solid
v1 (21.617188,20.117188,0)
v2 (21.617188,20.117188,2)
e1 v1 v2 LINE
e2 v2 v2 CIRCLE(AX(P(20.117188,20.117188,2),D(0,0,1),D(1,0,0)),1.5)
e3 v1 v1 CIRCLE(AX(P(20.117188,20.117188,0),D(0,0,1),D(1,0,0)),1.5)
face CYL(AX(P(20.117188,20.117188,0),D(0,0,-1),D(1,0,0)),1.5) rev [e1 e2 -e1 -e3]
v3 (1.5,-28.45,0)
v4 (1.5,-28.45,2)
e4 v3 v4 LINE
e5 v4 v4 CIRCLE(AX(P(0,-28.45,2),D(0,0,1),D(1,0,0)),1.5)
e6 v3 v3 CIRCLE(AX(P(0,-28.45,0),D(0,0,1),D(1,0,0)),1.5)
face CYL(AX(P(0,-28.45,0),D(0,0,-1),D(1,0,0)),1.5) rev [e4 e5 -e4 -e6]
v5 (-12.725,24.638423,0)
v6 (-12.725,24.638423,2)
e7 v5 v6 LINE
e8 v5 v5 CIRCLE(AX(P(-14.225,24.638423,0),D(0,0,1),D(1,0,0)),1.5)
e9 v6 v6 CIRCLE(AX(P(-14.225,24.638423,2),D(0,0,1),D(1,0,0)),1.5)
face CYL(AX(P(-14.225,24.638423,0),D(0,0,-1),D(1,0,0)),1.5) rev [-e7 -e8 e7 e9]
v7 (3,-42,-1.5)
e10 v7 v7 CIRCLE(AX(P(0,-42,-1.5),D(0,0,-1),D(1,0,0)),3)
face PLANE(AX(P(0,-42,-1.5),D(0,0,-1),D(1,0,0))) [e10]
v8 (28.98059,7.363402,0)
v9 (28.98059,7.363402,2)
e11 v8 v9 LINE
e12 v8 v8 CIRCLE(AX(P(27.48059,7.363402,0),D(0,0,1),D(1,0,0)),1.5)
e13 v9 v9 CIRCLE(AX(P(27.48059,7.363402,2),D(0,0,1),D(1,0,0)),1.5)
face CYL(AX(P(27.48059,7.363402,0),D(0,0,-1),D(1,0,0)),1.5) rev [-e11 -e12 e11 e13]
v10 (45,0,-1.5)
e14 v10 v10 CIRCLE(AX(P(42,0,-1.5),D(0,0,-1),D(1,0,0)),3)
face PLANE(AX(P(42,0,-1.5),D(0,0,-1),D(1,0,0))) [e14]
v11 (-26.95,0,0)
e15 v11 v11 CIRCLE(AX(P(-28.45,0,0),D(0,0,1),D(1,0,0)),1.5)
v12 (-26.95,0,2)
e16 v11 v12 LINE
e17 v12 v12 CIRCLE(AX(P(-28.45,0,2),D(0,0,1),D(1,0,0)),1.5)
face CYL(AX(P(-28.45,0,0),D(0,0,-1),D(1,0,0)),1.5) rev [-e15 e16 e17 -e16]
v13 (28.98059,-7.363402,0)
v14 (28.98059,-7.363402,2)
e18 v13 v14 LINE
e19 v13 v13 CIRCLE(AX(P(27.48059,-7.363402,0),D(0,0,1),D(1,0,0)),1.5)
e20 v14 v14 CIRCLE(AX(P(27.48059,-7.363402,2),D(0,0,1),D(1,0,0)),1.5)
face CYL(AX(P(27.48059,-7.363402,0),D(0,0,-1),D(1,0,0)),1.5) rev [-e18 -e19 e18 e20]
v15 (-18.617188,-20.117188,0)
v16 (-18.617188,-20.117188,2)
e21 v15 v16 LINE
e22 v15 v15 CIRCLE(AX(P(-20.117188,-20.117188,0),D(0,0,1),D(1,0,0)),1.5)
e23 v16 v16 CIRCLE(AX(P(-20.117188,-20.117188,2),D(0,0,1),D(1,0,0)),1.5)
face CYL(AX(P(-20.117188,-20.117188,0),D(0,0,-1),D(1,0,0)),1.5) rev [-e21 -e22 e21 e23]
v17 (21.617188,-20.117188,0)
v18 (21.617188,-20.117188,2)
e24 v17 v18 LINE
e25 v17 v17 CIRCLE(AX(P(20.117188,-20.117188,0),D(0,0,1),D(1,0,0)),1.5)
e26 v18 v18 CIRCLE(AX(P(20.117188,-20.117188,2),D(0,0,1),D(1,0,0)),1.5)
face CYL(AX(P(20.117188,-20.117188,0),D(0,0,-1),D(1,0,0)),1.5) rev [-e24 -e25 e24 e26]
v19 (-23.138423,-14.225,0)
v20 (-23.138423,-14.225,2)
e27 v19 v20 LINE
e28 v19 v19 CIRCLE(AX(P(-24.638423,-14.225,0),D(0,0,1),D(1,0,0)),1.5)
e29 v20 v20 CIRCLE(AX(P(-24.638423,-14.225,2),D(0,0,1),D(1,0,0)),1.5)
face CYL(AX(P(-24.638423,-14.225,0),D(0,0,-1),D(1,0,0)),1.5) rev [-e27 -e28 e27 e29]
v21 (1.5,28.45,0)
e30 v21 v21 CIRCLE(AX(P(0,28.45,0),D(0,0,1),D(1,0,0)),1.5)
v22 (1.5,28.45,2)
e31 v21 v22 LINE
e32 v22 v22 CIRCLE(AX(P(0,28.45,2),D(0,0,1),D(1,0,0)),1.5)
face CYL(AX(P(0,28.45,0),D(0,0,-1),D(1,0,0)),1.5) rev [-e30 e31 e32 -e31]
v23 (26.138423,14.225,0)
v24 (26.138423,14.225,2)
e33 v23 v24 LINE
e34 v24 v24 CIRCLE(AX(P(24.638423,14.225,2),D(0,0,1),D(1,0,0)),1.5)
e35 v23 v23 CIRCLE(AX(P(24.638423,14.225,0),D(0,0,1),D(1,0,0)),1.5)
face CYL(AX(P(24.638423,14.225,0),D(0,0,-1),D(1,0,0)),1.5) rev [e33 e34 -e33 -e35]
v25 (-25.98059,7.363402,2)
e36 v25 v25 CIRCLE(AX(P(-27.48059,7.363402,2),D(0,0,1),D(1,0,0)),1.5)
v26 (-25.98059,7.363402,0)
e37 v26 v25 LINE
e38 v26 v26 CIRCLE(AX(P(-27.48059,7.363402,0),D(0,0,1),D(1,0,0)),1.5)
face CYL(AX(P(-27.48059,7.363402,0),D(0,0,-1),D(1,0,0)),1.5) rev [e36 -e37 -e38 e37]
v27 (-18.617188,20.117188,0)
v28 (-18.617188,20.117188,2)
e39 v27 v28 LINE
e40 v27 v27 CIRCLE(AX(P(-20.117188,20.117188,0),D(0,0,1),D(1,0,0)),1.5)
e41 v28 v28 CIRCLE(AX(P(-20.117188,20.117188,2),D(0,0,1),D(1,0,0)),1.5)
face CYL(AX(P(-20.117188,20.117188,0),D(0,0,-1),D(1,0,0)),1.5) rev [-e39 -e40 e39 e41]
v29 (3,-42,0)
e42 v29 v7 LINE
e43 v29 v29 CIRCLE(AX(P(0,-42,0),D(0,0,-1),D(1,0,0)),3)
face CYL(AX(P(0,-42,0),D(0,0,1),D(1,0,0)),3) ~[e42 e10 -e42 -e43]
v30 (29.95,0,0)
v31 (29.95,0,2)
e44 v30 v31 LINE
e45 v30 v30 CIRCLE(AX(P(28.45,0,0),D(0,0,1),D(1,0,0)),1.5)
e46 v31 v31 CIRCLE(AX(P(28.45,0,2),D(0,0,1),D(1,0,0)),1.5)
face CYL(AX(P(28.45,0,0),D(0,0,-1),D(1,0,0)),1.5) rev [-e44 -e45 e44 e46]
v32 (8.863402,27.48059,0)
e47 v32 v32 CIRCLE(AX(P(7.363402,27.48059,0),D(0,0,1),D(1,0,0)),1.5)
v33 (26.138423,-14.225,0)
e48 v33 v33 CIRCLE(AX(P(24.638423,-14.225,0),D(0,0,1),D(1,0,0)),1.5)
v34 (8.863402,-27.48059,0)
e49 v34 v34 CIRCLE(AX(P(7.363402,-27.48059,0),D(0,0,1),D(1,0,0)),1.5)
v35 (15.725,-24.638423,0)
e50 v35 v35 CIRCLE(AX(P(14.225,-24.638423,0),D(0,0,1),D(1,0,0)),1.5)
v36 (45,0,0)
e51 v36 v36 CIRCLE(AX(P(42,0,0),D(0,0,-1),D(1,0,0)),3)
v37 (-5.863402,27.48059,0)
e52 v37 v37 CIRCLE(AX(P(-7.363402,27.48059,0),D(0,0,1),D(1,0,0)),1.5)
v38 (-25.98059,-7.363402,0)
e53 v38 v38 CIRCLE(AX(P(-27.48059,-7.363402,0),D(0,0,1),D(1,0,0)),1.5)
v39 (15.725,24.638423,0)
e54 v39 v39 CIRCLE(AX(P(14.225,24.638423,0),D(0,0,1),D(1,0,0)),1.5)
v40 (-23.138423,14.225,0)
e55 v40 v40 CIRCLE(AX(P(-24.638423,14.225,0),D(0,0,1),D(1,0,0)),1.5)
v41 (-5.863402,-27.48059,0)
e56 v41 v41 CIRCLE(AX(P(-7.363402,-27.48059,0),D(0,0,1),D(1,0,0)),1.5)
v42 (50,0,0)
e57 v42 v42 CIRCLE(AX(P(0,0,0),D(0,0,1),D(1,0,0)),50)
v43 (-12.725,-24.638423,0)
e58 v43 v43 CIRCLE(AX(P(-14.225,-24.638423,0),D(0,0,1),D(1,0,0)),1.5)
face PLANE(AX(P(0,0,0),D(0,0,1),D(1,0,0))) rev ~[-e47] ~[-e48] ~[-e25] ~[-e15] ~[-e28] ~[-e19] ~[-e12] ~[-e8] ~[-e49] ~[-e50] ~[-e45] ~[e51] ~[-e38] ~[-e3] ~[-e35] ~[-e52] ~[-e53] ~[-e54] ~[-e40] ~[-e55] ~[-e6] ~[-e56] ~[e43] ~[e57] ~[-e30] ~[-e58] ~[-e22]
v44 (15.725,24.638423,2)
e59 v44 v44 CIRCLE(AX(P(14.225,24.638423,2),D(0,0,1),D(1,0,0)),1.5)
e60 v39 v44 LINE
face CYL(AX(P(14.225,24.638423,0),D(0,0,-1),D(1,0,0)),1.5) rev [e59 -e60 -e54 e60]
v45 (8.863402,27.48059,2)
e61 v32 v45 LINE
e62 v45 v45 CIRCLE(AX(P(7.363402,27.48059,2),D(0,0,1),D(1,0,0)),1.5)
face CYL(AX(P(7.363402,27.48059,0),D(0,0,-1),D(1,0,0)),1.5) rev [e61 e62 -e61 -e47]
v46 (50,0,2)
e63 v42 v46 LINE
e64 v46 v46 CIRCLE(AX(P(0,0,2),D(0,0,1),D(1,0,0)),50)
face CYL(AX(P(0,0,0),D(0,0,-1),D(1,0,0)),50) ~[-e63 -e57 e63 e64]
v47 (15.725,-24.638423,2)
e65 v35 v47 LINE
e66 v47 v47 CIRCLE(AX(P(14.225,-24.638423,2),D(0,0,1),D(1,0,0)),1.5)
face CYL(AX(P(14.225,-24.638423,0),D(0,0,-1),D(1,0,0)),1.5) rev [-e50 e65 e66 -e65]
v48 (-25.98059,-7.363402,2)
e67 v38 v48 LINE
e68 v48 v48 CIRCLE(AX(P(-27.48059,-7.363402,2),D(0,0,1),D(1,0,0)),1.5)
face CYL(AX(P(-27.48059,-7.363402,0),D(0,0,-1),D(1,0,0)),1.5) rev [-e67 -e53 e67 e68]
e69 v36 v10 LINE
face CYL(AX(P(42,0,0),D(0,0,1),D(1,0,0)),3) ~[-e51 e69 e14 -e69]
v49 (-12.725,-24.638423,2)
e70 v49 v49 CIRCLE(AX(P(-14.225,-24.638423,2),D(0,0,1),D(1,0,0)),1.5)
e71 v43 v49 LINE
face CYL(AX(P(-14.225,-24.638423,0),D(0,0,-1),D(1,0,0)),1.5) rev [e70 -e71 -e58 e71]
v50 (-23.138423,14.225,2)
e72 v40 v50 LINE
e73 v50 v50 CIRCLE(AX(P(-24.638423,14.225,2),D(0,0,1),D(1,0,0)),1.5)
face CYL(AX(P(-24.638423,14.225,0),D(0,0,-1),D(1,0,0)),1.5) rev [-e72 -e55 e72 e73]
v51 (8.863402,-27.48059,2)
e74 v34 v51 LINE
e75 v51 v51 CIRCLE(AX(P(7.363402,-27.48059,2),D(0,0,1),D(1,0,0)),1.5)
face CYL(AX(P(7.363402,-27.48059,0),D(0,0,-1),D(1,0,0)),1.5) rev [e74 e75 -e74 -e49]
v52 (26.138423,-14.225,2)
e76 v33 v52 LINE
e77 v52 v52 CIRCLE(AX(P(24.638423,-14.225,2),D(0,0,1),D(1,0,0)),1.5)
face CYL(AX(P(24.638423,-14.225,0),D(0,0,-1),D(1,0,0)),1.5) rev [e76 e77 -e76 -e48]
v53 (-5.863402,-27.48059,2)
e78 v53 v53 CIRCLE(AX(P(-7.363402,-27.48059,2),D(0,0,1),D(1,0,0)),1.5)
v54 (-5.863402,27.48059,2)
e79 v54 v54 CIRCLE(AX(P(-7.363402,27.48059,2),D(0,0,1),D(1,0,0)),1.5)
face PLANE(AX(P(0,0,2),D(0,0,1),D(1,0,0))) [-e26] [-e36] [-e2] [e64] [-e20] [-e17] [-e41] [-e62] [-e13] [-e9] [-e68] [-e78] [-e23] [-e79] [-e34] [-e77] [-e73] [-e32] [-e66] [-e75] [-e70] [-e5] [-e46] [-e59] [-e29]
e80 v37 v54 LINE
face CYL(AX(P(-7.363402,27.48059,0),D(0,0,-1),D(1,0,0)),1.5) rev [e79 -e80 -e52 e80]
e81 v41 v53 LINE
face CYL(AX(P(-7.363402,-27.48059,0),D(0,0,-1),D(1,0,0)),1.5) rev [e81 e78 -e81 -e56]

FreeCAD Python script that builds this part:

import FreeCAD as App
import Part
import Sketcher

V = App.Vector
Q = App.Units.Quantity

doc = App.newDocument("Part")
body = doc.addObject("PartDesign::Body", "Body")

# Sketch on XY plane
sketch1 = doc.addObject("Sketcher::SketchObject", "Sketch")
body.addObject(sketch1)
sketch1.AttachmentSupport = (doc.XY_Plane, [""])
sketch1.MapMode = "FlatFace"
sketch1.addGeometry([
    Part.Circle(V(0, 0, 0), V(0, 0, 1), 50),  # 0
    Part.Circle(V(-20.1, -20.1, 0), V(0, 0, 1), 1.5),  # 1
    Part.Circle(V(-14.2, -24.6, 0), V(0, 0, 1), 1.5),  # 2
    Part.Circle(V(-7.4, -27.5, 0), V(0, 0, 1), 1.5),  # 3
    Part.Circle(V(-24.6, -14.2, 0), V(0, 0, 1), 1.5),  # 4
    Part.Circle(V(-27.5, -7.4, 0), V(0, 0, 1), 1.5),  # 5
    Part.Circle(V(-28.4, 0, 0), V(0, 0, 1), 1.5),  # 6
    Part.Circle(V(0, -28.4, 0), V(0, 0, 1), 1.5),  # 7
    Part.Circle(V(7.4, -27.5, 0), V(0, 0, 1), 1.5),  # 8
    Part.Circle(V(14.2, -24.6, 0), V(0, 0, 1), 1.5),  # 9
    Part.Circle(V(20.1, -20.1, 0), V(0, 0, 1), 1.5),  # 10
    Part.Circle(V(24.6, -14.2, 0), V(0, 0, 1), 1.5),  # 11
    Part.Circle(V(27.5, -7.4, 0), V(0, 0, 1), 1.5),  # 12
    Part.Circle(V(28.4, 0, 0), V(0, 0, 1), 1.5),  # 13
    Part.Circle(V(-27.5, 7.4, 0), V(0, 0, 1), 1.5),  # 14
    Part.Circle(V(-24.6, 14.2, 0), V(0, 0, 1), 1.5),  # 15
    Part.Circle(V(-20.1, 20.1, 0), V(0, 0, 1), 1.5),  # 16
    Part.Circle(V(-14.2, 24.6, 0), V(0, 0, 1), 1.5),  # 17
    Part.Circle(V(-7.4, 27.5, 0), V(0, 0, 1), 1.5),  # 18
    Part.Circle(V(27.5, 7.4, 0), V(0, 0, 1), 1.5),  # 19
    Part.Circle(V(24.6, 14.2, 0), V(0, 0, 1), 1.5),  # 20
    Part.Circle(V(0, 28.4, 0), V(0, 0, 1), 1.5),  # 21
    Part.Circle(V(7.4, 27.5, 0), V(0, 0, 1), 1.5),  # 22
    Part.Circle(V(14.2, 24.6, 0), V(0, 0, 1), 1.5),  # 23
    Part.Circle(V(20.1, 20.1, 0), V(0, 0, 1), 1.5),  # 24
], False)
sketch1.addConstraint([
    Sketcher.Constraint("Coincident", 0, 3, -1, 1),
    Sketcher.Constraint("Equal", 1, 2),
    Sketcher.Constraint("Equal", 2, 3),
    Sketcher.Constraint("Equal", 3, 4),
    Sketcher.Constraint("Equal", 4, 5),
    Sketcher.Constraint("Equal", 5, 6),
    Sketcher.Constraint("Equal", 6, 7),
    Sketcher.Constraint("Equal", 7, 8),
    Sketcher.Constraint("Equal", 8, 9),
    Sketcher.Constraint("Equal", 9, 10),
    Sketcher.Constraint("Equal", 10, 11),
    Sketcher.Constraint("Equal", 11, 12),
    Sketcher.Constraint("Equal", 12, 13),
    Sketcher.Constraint("Equal", 13, 14),
    Sketcher.Constraint("Equal", 14, 15),
    Sketcher.Constraint("Equal", 15, 16),
    Sketcher.Constraint("Equal", 16, 17),
    Sketcher.Constraint("Equal", 17, 18),
    Sketcher.Constraint("Equal", 18, 19),
    Sketcher.Constraint("Equal", 19, 20),
    Sketcher.Constraint("Equal", 20, 21),
    Sketcher.Constraint("Equal", 21, 22),
    Sketcher.Constraint("Equal", 22, 23),
    Sketcher.Constraint("Equal", 23, 24),
    Sketcher.Constraint("Symmetric", 6, 3, 13, 3, -1, 1),
    Sketcher.Constraint("Symmetric", 12, 3, 14, 3, -1, 1),
    Sketcher.Constraint("Symmetric", 11, 3, 15, 3, -1, 1),
    Sketcher.Constraint("Symmetric", 10, 3, 16, 3, -1, 1),
    Sketcher.Constraint("Symmetric", 9, 3, 17, 3, -1, 1),
    Sketcher.Constraint("Symmetric", 8, 3, 18, 3, -1, 1),
    Sketcher.Constraint("Symmetric", 5, 3, 19, 3, -1, 1),
    Sketcher.Constraint("Symmetric", 4, 3, 20, 3, -1, 1),
    Sketcher.Constraint("Symmetric", 7, 3, 21, 3, -1, 1),
    Sketcher.Constraint("Symmetric", 3, 3, 22, 3, -1, 1),
    Sketcher.Constraint("Symmetric", 2, 3, 23, 3, -1, 1),
    Sketcher.Constraint("Symmetric", 1, 3, 24, 3, -1, 1),
    Sketcher.Constraint("Symmetric", 3, 3, 8, 3, -2),
    Sketcher.Constraint("Symmetric", 2, 3, 9, 3, -2),
    Sketcher.Constraint("Symmetric", 1, 3, 10, 3, -2),
    Sketcher.Constraint("Symmetric", 4, 3, 11, 3, -2),
    Sketcher.Constraint("Symmetric", 5, 3, 12, 3, -2),
    Sketcher.Constraint("PointOnObject", 6, 3, -1),
    Sketcher.Constraint("PointOnObject", 7, 3, -2),
    Sketcher.Constraint("Diameter", 0, Q("100 mm")),
    Sketcher.Constraint("Diameter", 1, Q("3 mm")),
    Sketcher.Constraint("DistanceX", 6, 3, -1, 1, Q("28.45 mm")),
    Sketcher.Constraint("DistanceY", 7, 3, -1, 1, Q("28.45 mm")),
    Sketcher.Constraint("DistanceX", 2, 3, 9, 3, Q("28.45 mm")),
    Sketcher.Constraint("DistanceY", 4, 3, 15, 3, Q("28.45 mm")),
    Sketcher.Constraint("DistanceX", 3, 3, -1, 1, Q("7.363402 mm")),
    Sketcher.Constraint("DistanceY", 5, 3, -1, 1, Q("7.363402 mm")),
    Sketcher.Constraint("DistanceY", 3, 3, -1, 1, Q("27.48059 mm")),
    Sketcher.Constraint("DistanceX", 5, 3, -1, 1, Q("27.48059 mm")),
    Sketcher.Constraint("DistanceX", 4, 3, 3, 3, Q("17.275021 mm")),
    Sketcher.Constraint("DistanceY", 2, 3, 5, 3, Q("17.275021 mm")),
    Sketcher.Constraint("DistanceX", 1, 3, 8, 3, Q("27.48059 mm")),
    Sketcher.Constraint("DistanceY", 1, 3, 14, 3, Q("27.48059 mm")),
])
pad1 = doc.addObject("PartDesign::Pad", "Pad")
body.addObject(pad1)
pad1.Profile = sketch1
pad1.Length = 2

# Sketch on XY plane
sketch2 = doc.addObject("Sketcher::SketchObject", "Sketch001")
body.addObject(sketch2)
sketch2.AttachmentSupport = (doc.XY_Plane, [""])
sketch2.MapMode = "FlatFace"
sketch2.addGeometry([
    Part.Circle(V(0, -42, 0), V(0, 0, 1), 3),
    Part.Circle(V(42, 0, 0), V(0, 0, 1), 3),
], False)
sketch2.addConstraint([
    Sketcher.Constraint("Equal", 0, 1),
    Sketcher.Constraint("PointOnObject", 0, 3, -2),
    Sketcher.Constraint("PointOnObject", 1, 3, -1),
    Sketcher.Constraint("Diameter", 0, Q("6 mm")),
    Sketcher.Constraint("DistanceY", 0, 3, -1, 1, Q("42 mm")),
    Sketcher.Constraint("DistanceX", -1, 1, 1, 3, Q("42 mm")),
])
pad2 = doc.addObject("PartDesign::Pad", "Pad001")
body.addObject(pad2)
pad2.Profile = sketch2
pad2.Length = 1.5
pad2.Reversed = True

doc.recompute()
